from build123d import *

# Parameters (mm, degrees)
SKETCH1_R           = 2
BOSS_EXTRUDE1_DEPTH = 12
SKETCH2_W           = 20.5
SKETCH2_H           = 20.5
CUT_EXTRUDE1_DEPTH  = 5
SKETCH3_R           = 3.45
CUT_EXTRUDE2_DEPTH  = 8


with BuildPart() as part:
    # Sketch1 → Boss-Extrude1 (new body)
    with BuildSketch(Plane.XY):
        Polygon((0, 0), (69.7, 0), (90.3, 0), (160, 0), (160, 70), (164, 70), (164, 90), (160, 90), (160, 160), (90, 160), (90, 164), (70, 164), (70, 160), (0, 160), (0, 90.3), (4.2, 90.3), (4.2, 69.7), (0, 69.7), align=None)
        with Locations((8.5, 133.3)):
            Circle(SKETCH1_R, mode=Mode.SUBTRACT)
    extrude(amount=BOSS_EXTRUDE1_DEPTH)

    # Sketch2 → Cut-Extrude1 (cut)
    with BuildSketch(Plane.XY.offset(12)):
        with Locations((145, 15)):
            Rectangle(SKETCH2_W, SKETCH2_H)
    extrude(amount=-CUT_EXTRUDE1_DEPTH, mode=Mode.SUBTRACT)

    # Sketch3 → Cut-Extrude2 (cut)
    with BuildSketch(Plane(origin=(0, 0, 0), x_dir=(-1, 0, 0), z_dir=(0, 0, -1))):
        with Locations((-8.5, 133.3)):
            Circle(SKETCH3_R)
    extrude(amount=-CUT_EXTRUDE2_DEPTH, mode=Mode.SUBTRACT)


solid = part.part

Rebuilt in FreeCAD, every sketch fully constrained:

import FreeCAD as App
import Part
import Sketcher


def add_polygon(sketch, points):
    """Adds a closed chain of lines whose ends are joined by coincident constraints."""
    first, n = sketch.GeometryCount, len(points)
    for a, b in zip(points, points[1:] + points[:1]):
        sketch.addGeometry(Part.LineSegment(App.Vector(*a, 0), App.Vector(*b, 0)), False)
    for i in range(n):
        sketch.addConstraint(Sketcher.Constraint("Coincident", first + i, 2, first + (i + 1) % n, 1))

doc = App.newDocument("Part")
body = doc.addObject("PartDesign::Body", "Body")

# Sketch on XY plane
sketch1 = body.newObject("Sketcher::SketchObject", "Sketch")
sketch1.AttachmentSupport = (doc.getObject("XY_Plane"), [""])
sketch1.MapMode = "FlatFace"
add_polygon(sketch1, [(0, 0), (160, 0), (160, 70), (164, 70), (164, 90), (160, 90), (160, 160), (90, 160), (90, 164), (70, 164), (70, 160), (0, 160), (0, 90.3), (4.2, 90.3), (4.2, 69.7), (0, 69.7)])  # lines 0-15
sketch1.addGeometry(Part.Circle(App.Vector(8.5, 133.3, 0), App.Vector(0, 0, 1), 2), False)  # 16
sketch1.addConstraint([
    Sketcher.Constraint("Horizontal", 0),
    Sketcher.Constraint("Vertical", 1),
    Sketcher.Constraint("Horizontal", 2),
    Sketcher.Constraint("Vertical", 3),
    Sketcher.Constraint("Horizontal", 4),
    Sketcher.Constraint("Vertical", 5),
    Sketcher.Constraint("Horizontal", 6),
    Sketcher.Constraint("Vertical", 7),
    Sketcher.Constraint("Horizontal", 8),
    Sketcher.Constraint("Vertical", 9),
    Sketcher.Constraint("Horizontal", 10),
    Sketcher.Constraint("Vertical", 11),
    Sketcher.Constraint("Horizontal", 12),
    Sketcher.Constraint("Vertical", 13),
    Sketcher.Constraint("Horizontal", 14),
    Sketcher.Constraint("Vertical", 15),
    Sketcher.Constraint("Coincident", 15, 2, -1, 1),
    Sketcher.Constraint("PointOnObject", 10, 2, -2),
    Sketcher.Constraint("Horizontal", 6, 2, 9, 2),
    Sketcher.Constraint("Vertical", 1, 2, 4, 2),
    Sketcher.Constraint("Equal", 6, 10),
    Sketcher.Constraint("Equal", 10, 1),
    Sketcher.Constraint("Equal", 8, 3),
    Sketcher.Constraint("Equal", 1, 5),
    Sketcher.Constraint("Equal", 4, 7),
    Sketcher.Constraint("Equal", 11, 15),
    Sketcher.Constraint("Diameter", 16, 4.0),
    Sketcher.Constraint("DistanceX", 0, 1, 0, 2, 160.0),
    Sketcher.Constraint("DistanceX", 2, 1, 2, 2, 4.0),
    Sketcher.Constraint("DistanceX", 6, 2, 6, 1, 70.0),
    Sketcher.Constraint("DistanceX", 12, 1, 12, 2, 4.2),
    Sketcher.Constraint("DistanceY", 11, 2, 11, 1, 69.7),
    Sketcher.Constraint("DistanceY", 11, 2, 16, 3, 43.0),
    Sketcher.Constraint("DistanceX", -1, 1, 16, 3, 8.5),
])
pad1 = body.newObject("PartDesign::Pad", "Pad")
pad1.Profile = sketch1
pad1.Length = 12

# Sketch on XY plane
sketch2 = body.newObject("Sketcher::SketchObject", "Sketch001")
sketch2.AttachmentSupport = (doc.getObject("XY_Plane"), [""])
sketch2.MapMode = "FlatFace"
sketch2.AttachmentOffset = App.Placement(App.Vector(0, 0, 12), App.Rotation())
add_polygon(sketch2, [(134.75, 25.25), (134.75, 4.75), (155.25, 4.75), (155.25, 25.25)])  # lines 0-3
sketch2.addConstraint([
    Sketcher.Constraint("Vertical", 0),
    Sketcher.Constraint("Horizontal", 1),
    Sketcher.Constraint("Vertical", 2),
    Sketcher.Constraint("Horizontal", 3),
    Sketcher.Constraint("Equal", 3, 0),
    Sketcher.Constraint("DistanceX", 1, 1, 1, 2, 20.5),
    Sketcher.Constraint("DistanceX", -1, 1, 0, 2, 134.75),
    Sketcher.Constraint("DistanceY", -1, 1, 0, 2, 4.75),
])
pocket1 = body.newObject("PartDesign::Pocket", "Pocket")
pocket1.Profile = sketch2
pocket1.Length = 5

# Sketch on XY plane
sketch3 = body.newObject("Sketcher::SketchObject", "Sketch002")
sketch3.AttachmentSupport = (doc.getObject("XY_Plane"), [""])
sketch3.MapMode = "FlatFace"
sketch3.addGeometry(Part.Circle(App.Vector(8.5, 133.3, 0), App.Vector(0, 0, 1), 3.45), False)
sketch3.addConstraint([
    Sketcher.Constraint("Diameter", 0, 6.9),
    Sketcher.Constraint("DistanceX", -1, 1, 0, 3, 8.5),
    Sketcher.Constraint("DistanceY", -1, 1, 0, 3, 133.3),
])
pocket2 = body.newObject("PartDesign::Pocket", "Pocket001")
pocket2.Profile = sketch3
pocket2.Length = 8
pocket2.Reversed = True

doc.recompute()
